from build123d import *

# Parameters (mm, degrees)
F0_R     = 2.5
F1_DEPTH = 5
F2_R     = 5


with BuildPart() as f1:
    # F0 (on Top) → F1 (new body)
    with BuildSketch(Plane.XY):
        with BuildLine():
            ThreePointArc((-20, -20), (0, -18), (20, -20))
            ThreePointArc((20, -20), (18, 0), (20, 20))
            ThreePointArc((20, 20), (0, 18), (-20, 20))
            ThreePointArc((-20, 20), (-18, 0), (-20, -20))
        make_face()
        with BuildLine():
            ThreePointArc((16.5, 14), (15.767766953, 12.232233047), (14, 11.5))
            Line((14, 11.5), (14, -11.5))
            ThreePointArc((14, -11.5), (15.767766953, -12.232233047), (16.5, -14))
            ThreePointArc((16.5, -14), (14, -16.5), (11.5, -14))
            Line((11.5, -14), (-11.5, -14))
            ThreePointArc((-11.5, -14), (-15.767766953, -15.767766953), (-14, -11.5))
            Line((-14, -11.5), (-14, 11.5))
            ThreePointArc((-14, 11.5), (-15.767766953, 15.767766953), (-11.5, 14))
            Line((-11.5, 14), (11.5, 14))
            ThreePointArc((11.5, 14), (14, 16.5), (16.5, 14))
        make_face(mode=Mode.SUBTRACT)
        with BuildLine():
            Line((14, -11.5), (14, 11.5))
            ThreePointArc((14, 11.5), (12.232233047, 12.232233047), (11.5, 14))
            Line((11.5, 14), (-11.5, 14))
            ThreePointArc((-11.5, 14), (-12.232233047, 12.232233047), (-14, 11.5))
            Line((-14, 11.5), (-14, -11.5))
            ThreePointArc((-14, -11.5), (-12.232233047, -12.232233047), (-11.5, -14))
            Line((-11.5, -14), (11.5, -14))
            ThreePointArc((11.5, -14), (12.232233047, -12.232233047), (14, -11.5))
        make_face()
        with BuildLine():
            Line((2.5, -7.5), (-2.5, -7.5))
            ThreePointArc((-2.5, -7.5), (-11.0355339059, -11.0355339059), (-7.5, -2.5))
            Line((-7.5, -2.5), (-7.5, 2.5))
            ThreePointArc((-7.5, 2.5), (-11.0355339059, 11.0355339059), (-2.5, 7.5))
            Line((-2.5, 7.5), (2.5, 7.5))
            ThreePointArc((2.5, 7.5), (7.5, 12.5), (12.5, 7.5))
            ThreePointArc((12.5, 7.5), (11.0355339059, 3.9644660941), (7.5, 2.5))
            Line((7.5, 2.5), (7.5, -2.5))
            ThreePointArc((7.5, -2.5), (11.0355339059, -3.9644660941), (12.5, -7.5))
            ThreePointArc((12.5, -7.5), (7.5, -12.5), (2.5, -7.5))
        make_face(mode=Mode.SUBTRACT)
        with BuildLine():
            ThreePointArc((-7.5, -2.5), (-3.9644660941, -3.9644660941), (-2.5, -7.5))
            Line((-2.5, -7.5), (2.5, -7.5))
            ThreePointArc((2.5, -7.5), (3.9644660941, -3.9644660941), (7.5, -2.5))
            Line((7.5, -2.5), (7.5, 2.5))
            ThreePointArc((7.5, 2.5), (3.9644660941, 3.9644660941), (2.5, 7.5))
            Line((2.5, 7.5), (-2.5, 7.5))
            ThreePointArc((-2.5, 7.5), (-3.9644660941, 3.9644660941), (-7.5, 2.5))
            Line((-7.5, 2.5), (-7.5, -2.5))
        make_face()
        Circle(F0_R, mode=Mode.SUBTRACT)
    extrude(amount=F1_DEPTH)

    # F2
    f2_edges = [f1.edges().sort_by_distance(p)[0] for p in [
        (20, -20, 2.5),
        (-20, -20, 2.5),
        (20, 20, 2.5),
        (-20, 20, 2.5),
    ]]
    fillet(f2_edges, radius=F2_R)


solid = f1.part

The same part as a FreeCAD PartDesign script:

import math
import FreeCAD as App
import Part
import Sketcher

V = App.Vector


def edges_at(feature, points):
    """Names of the edges that pass closest to the given points."""
    edges = feature.Shape.Edges
    near = lambda p: min(range(len(edges)), key=lambda i: edges[i].distToShape(Part.Vertex(*p))[0])
    return sorted({f"Edge{near(p) + 1}" for p in points})

doc = App.newDocument("Part")
body = doc.addObject("PartDesign::Body", "Body")

# Sketch on XY plane
sketch1 = doc.addObject("Sketcher::SketchObject", "Sketch")
body.addObject(sketch1)
sketch1.AttachmentSupport = (doc.XY_Plane, [""])
sketch1.MapMode = "FlatFace"
sketch1.addGeometry([
    Part.ArcOfCircle(Part.Circle(V(0, -119, 0), V(0, 0, 1), 101), math.radians(79), math.radians(101)),  # 0
    Part.ArcOfCircle(Part.Circle(V(119, 0, 0), V(0, 0, 1), 101), math.radians(169), math.radians(191)),  # 1
    Part.ArcOfCircle(Part.Circle(V(0, 119, 0), V(0, 0, 1), 101), math.radians(-101), math.radians(-79)),  # 2
    Part.ArcOfCircle(Part.Circle(V(-119, 0, 0), V(0, 0, 1), 101), math.radians(-11), math.radians(11)),  # 3
    Part.ArcOfCircle(Part.Circle(V(-14, -14, 0), V(0, 0, 1), 2.5), math.radians(90), math.radians(360)),  # 4
    Part.ArcOfCircle(Part.Circle(V(-14, -14, 0), V(0, 0, 1), 2.5), math.radians(0), math.radians(90)),  # 5
    Part.ArcOfCircle(Part.Circle(V(-7.5, -7.5, 0), V(0, 0, 1), 5), math.radians(90), math.radians(360)),  # 6
    Part.ArcOfCircle(Part.Circle(V(-7.5, -7.5, 0), V(0, 0, 1), 5), math.radians(0), math.radians(90)),  # 7
    Part.ArcOfCircle(Part.Circle(V(14, -14, 0), V(0, 0, 1), 2.5), math.radians(180), math.radians(360)),  # 8
    Part.ArcOfCircle(Part.Circle(V(14, -14, 0), V(0, 0, 1), 2.5), math.radians(90), math.radians(180)),  # 9
    Part.ArcOfCircle(Part.Circle(V(14, -14, 0), V(0, 0, 1), 2.5), math.radians(0), math.radians(90)),  # 10
    Part.ArcOfCircle(Part.Circle(V(7.5, -7.5, 0), V(0, 0, 1), 5), math.radians(180), math.radians(360)),  # 11
    Part.ArcOfCircle(Part.Circle(V(7.5, -7.5, 0), V(0, 0, 1), 5), math.radians(90), math.radians(180)),  # 12
    Part.ArcOfCircle(Part.Circle(V(7.5, -7.5, 0), V(0, 0, 1), 5), math.radians(0), math.radians(90)),  # 13
    Part.ArcOfCircle(Part.Circle(V(-7.5, 7.5, 0), V(0, 0, 1), 5), math.radians(0), math.radians(270)),  # 14
    Part.ArcOfCircle(Part.Circle(V(-7.5, 7.5, 0), V(0, 0, 1), 5), math.radians(-90), math.radians(0)),  # 15
    Part.ArcOfCircle(Part.Circle(V(-14, 14, 0), V(0, 0, 1), 2.5), math.radians(0), math.radians(270)),  # 16
    Part.ArcOfCircle(Part.Circle(V(-14, 14, 0), V(0, 0, 1), 2.5), math.radians(-90), math.radians(0)),  # 17
    Part.Circle(V(0, 0, 0), V(0, 0, 1), 2.5),  # 18
    Part.ArcOfCircle(Part.Circle(V(7.5, 7.5, 0), V(0, 0, 1), 5), math.radians(-90), math.radians(0)),  # 19
    Part.ArcOfCircle(Part.Circle(V(7.5, 7.5, 0), V(0, 0, 1), 5), math.radians(180), math.radians(270)),  # 20
    Part.ArcOfCircle(Part.Circle(V(7.5, 7.5, 0), V(0, 0, 1), 5), math.radians(0), math.radians(180)),  # 21
    Part.ArcOfCircle(Part.Circle(V(14, 14, 0), V(0, 0, 1), 2.5), math.radians(0), math.radians(180)),  # 22
    Part.ArcOfCircle(Part.Circle(V(14, 14, 0), V(0, 0, 1), 2.5), math.radians(-90), math.radians(0)),  # 23
    Part.ArcOfCircle(Part.Circle(V(14, 14, 0), V(0, 0, 1), 2.5), math.radians(180), math.radians(270)),  # 24
], False)
sketch1.addConstraint([
    Sketcher.Constraint("Coincident", 0, 1, 1, 2),
    Sketcher.Constraint("Coincident", 1, 1, 2, 2),
    Sketcher.Constraint("Coincident", 2, 1, 3, 2),
    Sketcher.Constraint("Coincident", 3, 1, 0, 2),
    Sketcher.Constraint("Tangent", 4, 1, 5, 2),
    Sketcher.Constraint("Coincident", 5, 1, 4, 2),
    Sketcher.Constraint("Tangent", 6, 1, 7, 2),
    Sketcher.Constraint("Coincident", 7, 1, 6, 2),
    Sketcher.Constraint("Tangent", 8, 1, 9, 2),
    Sketcher.Constraint("Tangent", 9, 1, 10, 2),
    Sketcher.Constraint("Tangent", 10, 1, 8, 2),
    Sketcher.Constraint("Tangent", 11, 1, 12, 2),
    Sketcher.Constraint("Tangent", 12, 1, 13, 2),
    Sketcher.Constraint("Tangent", 13, 1, 11, 2),
    Sketcher.Constraint("Tangent", 14, 1, 15, 2),
    Sketcher.Constraint("Coincident", 15, 1, 14, 2),
    Sketcher.Constraint("Tangent", 16, 1, 17, 2),
    Sketcher.Constraint("Coincident", 17, 1, 16, 2),
    Sketcher.Constraint("Tangent", 19, 1, 20, 2),
    Sketcher.Constraint("Tangent", 20, 1, 21, 2),
    Sketcher.Constraint("Tangent", 21, 1, 19, 2),
    Sketcher.Constraint("Tangent", 22, 1, 23, 2),
    Sketcher.Constraint("Tangent", 23, 1, 24, 2),
    Sketcher.Constraint("Tangent", 24, 1, 22, 2),
    Sketcher.Constraint("Coincident", 18, 3, -1, 1),
    Sketcher.Constraint("Equal", 0, 1),
    Sketcher.Constraint("Equal", 1, 2),
    Sketcher.Constraint("Equal", 2, 3),
    Sketcher.Constraint("Equal", 5, 8),
    Sketcher.Constraint("Equal", 7, 11),
    Sketcher.Constraint("Equal", 13, 14),
    Sketcher.Constraint("Equal", 10, 16),
    Sketcher.Constraint("Equal", 17, 18),
    Sketcher.Constraint("Equal", 15, 19),
    Sketcher.Constraint("Equal", 18, 22),
    Sketcher.Constraint("Symmetric", 0, 3, 2, 3, -1, 1),
    Sketcher.Constraint("Symmetric", 1, 3, 3, 3, -1, 1),
    Sketcher.Constraint("Symmetric", 11, 3, 14, 3, -1, 1),
    Sketcher.Constraint("Symmetric", 8, 3, 16, 3, -1, 1),
    Sketcher.Constraint("Symmetric", 6, 3, 19, 3, -1, 1),
    Sketcher.Constraint("Symmetric", 4, 3, 22, 3, -1, 1),
    Sketcher.Constraint("Symmetric", 4, 3, 8, 3, -2),
    Sketcher.Constraint("Symmetric", 6, 3, 11, 3, -2),
    Sketcher.Constraint("Symmetric", 1, 1, 2, 1, -2),
    Sketcher.Constraint("Horizontal", 10, 3, 5, 1),
    Sketcher.Constraint("Horizontal", 13, 3, 7, 1),
    Sketcher.Constraint("Horizontal", 5, 1, 8, 1),
    Sketcher.Constraint("Horizontal", 8, 1, 10, 1),
    Sketcher.Constraint("Horizontal", 7, 1, 11, 1),
    Sketcher.Constraint("Horizontal", 11, 1, 13, 1),
    Sketcher.Constraint("Horizontal", 21, 3, 14, 1),
    Sketcher.Constraint("Horizontal", 24, 3, 16, 1),
    Sketcher.Constraint("Horizontal", 14, 1, 20, 1),
    Sketcher.Constraint("Horizontal", 20, 1, 21, 1),
    Sketcher.Constraint("Horizontal", 16, 1, 22, 1),
    Sketcher.Constraint("Horizontal", 22, 1, 24, 1),
    Sketcher.Constraint("Vertical", 17, 3, 4, 1),
    Sketcher.Constraint("Vertical", 15, 3, 6, 1),
    Sketcher.Constraint("Vertical", 24, 3, 9, 1),
    Sketcher.Constraint("Vertical", 21, 3, 12, 1),
    Sketcher.Constraint("Vertical", 6, 1, 15, 1),
    Sketcher.Constraint("Vertical", 4, 1, 17, 1),
    Sketcher.Constraint("Vertical", 12, 1, 19, 1),
    Sketcher.Constraint("Vertical", 9, 1, 23, 1),
    Sketcher.Constraint("Diameter", 18, 5.0),
    Sketcher.Constraint("Radius", 0, 101.0),
    Sketcher.Constraint("Radius", 6, 5.0),
    Sketcher.Constraint("DistanceY", 0, 3, -1, 1, 119.0),
    Sketcher.Constraint("DistanceX", -1, 1, 1, 3, 119.0),
    Sketcher.Constraint("DistanceX", 4, 3, -1, 1, 14.0),
    Sketcher.Constraint("DistanceY", 4, 3, -1, 1, 14.0),
    Sketcher.Constraint("DistanceX", 6, 3, 11, 3, 15.0),
    Sketcher.Constraint("DistanceY", 6, 3, 14, 3, 15.0),
])
pad1 = doc.addObject("PartDesign::Pad", "Pad")
body.addObject(pad1)
pad1.Profile = sketch1
pad1.Length = 5
doc.recompute()

fillet = doc.addObject("PartDesign::Fillet", "Fillet")
body.addObject(fillet)
fillet.Base = (pad1, edges_at(pad1, [
    (20, -20, 2.5),
    (-20, -20, 2.5),
    (20, 20, 2.5),
    (-20, 20, 2.5),
]))
fillet.Radius = 5

doc.recompute()
